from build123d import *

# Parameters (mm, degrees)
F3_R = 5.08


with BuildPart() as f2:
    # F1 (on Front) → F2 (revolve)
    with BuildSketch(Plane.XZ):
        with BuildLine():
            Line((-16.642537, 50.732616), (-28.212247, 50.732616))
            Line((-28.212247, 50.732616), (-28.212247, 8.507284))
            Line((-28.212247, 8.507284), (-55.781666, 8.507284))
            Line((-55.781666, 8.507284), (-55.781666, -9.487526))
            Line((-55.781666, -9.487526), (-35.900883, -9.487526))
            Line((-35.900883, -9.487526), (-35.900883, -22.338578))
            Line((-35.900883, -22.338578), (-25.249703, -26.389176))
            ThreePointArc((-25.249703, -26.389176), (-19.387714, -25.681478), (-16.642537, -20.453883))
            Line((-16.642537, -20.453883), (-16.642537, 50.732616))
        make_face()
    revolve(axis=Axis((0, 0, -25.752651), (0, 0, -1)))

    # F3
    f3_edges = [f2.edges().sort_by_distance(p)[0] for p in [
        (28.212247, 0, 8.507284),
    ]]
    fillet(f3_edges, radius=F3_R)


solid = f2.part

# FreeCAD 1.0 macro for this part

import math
import FreeCAD as App
import Part
import Sketcher
from FreeCAD import Vector
Q = App.Units.Quantity


def edges_at(feature, points):
    """Names of the edges that pass closest to the given points."""
    edges = feature.Shape.Edges
    near = lambda p: min(range(len(edges)), key=lambda i: edges[i].distToShape(Part.Vertex(*p))[0])
    return sorted({f"Edge{near(p) + 1}" for p in points})

doc = App.newDocument("Part")
params = doc.addObject("Spreadsheet::Sheet", "Params")
for row, (alias, value) in enumerate([
    ("sketch1_radius", "0.25 in"),
    ("revolution_angle", "360 deg"),
    ("fillet_radius", "0.2 in"),
], start=1):
    params.set(f"A{row}", alias)
    params.set(f"B{row}", "=" + value)
    params.setAlias(f"B{row}", alias)

body = doc.addObject("PartDesign::Body", "Body")

sketch1 = doc.addObject("Sketcher::SketchObject", "Sketch")
body.addObject(sketch1)
sketch1.AttachmentSupport = (doc.XZ_Plane, [""])
sketch1.MapMode = "FlatFace"
sketch1.addGeometry([
    Part.LineSegment(Vector(-16.642537, 50.732616, 0), Vector(-28.212247, 50.732616, 0)),
    Part.LineSegment(Vector(-28.212247, 50.732616, 0), Vector(-28.212247, 8.507284, 0)),
    Part.LineSegment(Vector(-28.212247, 8.507284, 0), Vector(-55.781666, 8.507284, 0)),
    Part.LineSegment(Vector(-55.781666, 8.507284, 0), Vector(-55.781666, -9.487526, 0)),
    Part.LineSegment(Vector(-55.781666, -9.487526, 0), Vector(-35.900883, -9.487526, 0)),
    Part.LineSegment(Vector(-35.900883, -9.487526, 0), Vector(-35.900883, -22.338578, 0)),
    Part.LineSegment(Vector(-35.900883, -22.338578, 0), Vector(-25.249703, -26.389176, 0)),
    Part.ArcOfCircle(Part.Circle(Vector(-22.992537, -20.453883, 0), Vector(0, 0, 1), 6.35), math.radians(-110.821587), math.radians(-0.000003)),
    Part.LineSegment(Vector(-16.642537, -20.453883, 0), Vector(-16.642537, 50.732616, 0)),
], False)
sketch1.addConstraint([
    Sketcher.Constraint("Coincident", 0, 2, 1, 1),
    Sketcher.Constraint("Coincident", 1, 2, 2, 1),
    Sketcher.Constraint("Coincident", 2, 2, 3, 1),
    Sketcher.Constraint("Coincident", 3, 2, 4, 1),
    Sketcher.Constraint("Coincident", 4, 2, 5, 1),
    Sketcher.Constraint("Coincident", 5, 2, 6, 1),
    Sketcher.Constraint("Tangent", 6, 2, 7, 1),
    Sketcher.Constraint("Tangent", 7, 2, 8, 1),
    Sketcher.Constraint("Coincident", 8, 2, 0, 1),
    Sketcher.Constraint("Horizontal", 0),
    Sketcher.Constraint("Vertical", 1),
    Sketcher.Constraint("Horizontal", 2),
    Sketcher.Constraint("Vertical", 3),
    Sketcher.Constraint("Horizontal", 4),
    Sketcher.Constraint("Vertical", 5),
    Sketcher.Constraint("Vertical", 8),
    Sketcher.Constraint("Radius", 7, Q("0.25 in")),
    Sketcher.Constraint("DistanceY", 8, 1, 8, 2, 71.186499),
    Sketcher.Constraint("DistanceX", 0, 2, 0, 1, 11.56971),
    Sketcher.Constraint("DistanceX", 2, 2, 2, 1, 27.569419),
    Sketcher.Constraint("DistanceY", 3, 2, 3, 1, 17.99481),
    Sketcher.Constraint("DistanceY", 5, 2, 5, 1, 12.851052),
    Sketcher.Constraint("DistanceY", 6, 2, 5, 2, 4.050598),
    Sketcher.Constraint("DistanceX", 4, 1, 4, 2, 19.880783),
    Sketcher.Constraint("DistanceX", 7, 3, -1, 1, 22.992537),
    Sketcher.Constraint("DistanceY", 7, 3, -1, 1, 20.453883),
])
sketch1.setExpression("Constraints[16]", "Params.sketch1_radius")
revolution = doc.addObject("PartDesign::Revolution", "Revolution")
body.addObject(revolution)
revolution.Profile = sketch1
revolution.ReferenceAxis = (sketch1, ["V_Axis"])
revolution.setExpression("Angle", "Params.revolution_angle")
doc.recompute()

fillet = doc.addObject("PartDesign::Fillet", "Fillet")
body.addObject(fillet)
fillet.Base = (revolution, edges_at(revolution, [(28.212, 0, 8.507)]))
fillet.setExpression("Radius", "Params.fillet_radius")

doc.recompute()
